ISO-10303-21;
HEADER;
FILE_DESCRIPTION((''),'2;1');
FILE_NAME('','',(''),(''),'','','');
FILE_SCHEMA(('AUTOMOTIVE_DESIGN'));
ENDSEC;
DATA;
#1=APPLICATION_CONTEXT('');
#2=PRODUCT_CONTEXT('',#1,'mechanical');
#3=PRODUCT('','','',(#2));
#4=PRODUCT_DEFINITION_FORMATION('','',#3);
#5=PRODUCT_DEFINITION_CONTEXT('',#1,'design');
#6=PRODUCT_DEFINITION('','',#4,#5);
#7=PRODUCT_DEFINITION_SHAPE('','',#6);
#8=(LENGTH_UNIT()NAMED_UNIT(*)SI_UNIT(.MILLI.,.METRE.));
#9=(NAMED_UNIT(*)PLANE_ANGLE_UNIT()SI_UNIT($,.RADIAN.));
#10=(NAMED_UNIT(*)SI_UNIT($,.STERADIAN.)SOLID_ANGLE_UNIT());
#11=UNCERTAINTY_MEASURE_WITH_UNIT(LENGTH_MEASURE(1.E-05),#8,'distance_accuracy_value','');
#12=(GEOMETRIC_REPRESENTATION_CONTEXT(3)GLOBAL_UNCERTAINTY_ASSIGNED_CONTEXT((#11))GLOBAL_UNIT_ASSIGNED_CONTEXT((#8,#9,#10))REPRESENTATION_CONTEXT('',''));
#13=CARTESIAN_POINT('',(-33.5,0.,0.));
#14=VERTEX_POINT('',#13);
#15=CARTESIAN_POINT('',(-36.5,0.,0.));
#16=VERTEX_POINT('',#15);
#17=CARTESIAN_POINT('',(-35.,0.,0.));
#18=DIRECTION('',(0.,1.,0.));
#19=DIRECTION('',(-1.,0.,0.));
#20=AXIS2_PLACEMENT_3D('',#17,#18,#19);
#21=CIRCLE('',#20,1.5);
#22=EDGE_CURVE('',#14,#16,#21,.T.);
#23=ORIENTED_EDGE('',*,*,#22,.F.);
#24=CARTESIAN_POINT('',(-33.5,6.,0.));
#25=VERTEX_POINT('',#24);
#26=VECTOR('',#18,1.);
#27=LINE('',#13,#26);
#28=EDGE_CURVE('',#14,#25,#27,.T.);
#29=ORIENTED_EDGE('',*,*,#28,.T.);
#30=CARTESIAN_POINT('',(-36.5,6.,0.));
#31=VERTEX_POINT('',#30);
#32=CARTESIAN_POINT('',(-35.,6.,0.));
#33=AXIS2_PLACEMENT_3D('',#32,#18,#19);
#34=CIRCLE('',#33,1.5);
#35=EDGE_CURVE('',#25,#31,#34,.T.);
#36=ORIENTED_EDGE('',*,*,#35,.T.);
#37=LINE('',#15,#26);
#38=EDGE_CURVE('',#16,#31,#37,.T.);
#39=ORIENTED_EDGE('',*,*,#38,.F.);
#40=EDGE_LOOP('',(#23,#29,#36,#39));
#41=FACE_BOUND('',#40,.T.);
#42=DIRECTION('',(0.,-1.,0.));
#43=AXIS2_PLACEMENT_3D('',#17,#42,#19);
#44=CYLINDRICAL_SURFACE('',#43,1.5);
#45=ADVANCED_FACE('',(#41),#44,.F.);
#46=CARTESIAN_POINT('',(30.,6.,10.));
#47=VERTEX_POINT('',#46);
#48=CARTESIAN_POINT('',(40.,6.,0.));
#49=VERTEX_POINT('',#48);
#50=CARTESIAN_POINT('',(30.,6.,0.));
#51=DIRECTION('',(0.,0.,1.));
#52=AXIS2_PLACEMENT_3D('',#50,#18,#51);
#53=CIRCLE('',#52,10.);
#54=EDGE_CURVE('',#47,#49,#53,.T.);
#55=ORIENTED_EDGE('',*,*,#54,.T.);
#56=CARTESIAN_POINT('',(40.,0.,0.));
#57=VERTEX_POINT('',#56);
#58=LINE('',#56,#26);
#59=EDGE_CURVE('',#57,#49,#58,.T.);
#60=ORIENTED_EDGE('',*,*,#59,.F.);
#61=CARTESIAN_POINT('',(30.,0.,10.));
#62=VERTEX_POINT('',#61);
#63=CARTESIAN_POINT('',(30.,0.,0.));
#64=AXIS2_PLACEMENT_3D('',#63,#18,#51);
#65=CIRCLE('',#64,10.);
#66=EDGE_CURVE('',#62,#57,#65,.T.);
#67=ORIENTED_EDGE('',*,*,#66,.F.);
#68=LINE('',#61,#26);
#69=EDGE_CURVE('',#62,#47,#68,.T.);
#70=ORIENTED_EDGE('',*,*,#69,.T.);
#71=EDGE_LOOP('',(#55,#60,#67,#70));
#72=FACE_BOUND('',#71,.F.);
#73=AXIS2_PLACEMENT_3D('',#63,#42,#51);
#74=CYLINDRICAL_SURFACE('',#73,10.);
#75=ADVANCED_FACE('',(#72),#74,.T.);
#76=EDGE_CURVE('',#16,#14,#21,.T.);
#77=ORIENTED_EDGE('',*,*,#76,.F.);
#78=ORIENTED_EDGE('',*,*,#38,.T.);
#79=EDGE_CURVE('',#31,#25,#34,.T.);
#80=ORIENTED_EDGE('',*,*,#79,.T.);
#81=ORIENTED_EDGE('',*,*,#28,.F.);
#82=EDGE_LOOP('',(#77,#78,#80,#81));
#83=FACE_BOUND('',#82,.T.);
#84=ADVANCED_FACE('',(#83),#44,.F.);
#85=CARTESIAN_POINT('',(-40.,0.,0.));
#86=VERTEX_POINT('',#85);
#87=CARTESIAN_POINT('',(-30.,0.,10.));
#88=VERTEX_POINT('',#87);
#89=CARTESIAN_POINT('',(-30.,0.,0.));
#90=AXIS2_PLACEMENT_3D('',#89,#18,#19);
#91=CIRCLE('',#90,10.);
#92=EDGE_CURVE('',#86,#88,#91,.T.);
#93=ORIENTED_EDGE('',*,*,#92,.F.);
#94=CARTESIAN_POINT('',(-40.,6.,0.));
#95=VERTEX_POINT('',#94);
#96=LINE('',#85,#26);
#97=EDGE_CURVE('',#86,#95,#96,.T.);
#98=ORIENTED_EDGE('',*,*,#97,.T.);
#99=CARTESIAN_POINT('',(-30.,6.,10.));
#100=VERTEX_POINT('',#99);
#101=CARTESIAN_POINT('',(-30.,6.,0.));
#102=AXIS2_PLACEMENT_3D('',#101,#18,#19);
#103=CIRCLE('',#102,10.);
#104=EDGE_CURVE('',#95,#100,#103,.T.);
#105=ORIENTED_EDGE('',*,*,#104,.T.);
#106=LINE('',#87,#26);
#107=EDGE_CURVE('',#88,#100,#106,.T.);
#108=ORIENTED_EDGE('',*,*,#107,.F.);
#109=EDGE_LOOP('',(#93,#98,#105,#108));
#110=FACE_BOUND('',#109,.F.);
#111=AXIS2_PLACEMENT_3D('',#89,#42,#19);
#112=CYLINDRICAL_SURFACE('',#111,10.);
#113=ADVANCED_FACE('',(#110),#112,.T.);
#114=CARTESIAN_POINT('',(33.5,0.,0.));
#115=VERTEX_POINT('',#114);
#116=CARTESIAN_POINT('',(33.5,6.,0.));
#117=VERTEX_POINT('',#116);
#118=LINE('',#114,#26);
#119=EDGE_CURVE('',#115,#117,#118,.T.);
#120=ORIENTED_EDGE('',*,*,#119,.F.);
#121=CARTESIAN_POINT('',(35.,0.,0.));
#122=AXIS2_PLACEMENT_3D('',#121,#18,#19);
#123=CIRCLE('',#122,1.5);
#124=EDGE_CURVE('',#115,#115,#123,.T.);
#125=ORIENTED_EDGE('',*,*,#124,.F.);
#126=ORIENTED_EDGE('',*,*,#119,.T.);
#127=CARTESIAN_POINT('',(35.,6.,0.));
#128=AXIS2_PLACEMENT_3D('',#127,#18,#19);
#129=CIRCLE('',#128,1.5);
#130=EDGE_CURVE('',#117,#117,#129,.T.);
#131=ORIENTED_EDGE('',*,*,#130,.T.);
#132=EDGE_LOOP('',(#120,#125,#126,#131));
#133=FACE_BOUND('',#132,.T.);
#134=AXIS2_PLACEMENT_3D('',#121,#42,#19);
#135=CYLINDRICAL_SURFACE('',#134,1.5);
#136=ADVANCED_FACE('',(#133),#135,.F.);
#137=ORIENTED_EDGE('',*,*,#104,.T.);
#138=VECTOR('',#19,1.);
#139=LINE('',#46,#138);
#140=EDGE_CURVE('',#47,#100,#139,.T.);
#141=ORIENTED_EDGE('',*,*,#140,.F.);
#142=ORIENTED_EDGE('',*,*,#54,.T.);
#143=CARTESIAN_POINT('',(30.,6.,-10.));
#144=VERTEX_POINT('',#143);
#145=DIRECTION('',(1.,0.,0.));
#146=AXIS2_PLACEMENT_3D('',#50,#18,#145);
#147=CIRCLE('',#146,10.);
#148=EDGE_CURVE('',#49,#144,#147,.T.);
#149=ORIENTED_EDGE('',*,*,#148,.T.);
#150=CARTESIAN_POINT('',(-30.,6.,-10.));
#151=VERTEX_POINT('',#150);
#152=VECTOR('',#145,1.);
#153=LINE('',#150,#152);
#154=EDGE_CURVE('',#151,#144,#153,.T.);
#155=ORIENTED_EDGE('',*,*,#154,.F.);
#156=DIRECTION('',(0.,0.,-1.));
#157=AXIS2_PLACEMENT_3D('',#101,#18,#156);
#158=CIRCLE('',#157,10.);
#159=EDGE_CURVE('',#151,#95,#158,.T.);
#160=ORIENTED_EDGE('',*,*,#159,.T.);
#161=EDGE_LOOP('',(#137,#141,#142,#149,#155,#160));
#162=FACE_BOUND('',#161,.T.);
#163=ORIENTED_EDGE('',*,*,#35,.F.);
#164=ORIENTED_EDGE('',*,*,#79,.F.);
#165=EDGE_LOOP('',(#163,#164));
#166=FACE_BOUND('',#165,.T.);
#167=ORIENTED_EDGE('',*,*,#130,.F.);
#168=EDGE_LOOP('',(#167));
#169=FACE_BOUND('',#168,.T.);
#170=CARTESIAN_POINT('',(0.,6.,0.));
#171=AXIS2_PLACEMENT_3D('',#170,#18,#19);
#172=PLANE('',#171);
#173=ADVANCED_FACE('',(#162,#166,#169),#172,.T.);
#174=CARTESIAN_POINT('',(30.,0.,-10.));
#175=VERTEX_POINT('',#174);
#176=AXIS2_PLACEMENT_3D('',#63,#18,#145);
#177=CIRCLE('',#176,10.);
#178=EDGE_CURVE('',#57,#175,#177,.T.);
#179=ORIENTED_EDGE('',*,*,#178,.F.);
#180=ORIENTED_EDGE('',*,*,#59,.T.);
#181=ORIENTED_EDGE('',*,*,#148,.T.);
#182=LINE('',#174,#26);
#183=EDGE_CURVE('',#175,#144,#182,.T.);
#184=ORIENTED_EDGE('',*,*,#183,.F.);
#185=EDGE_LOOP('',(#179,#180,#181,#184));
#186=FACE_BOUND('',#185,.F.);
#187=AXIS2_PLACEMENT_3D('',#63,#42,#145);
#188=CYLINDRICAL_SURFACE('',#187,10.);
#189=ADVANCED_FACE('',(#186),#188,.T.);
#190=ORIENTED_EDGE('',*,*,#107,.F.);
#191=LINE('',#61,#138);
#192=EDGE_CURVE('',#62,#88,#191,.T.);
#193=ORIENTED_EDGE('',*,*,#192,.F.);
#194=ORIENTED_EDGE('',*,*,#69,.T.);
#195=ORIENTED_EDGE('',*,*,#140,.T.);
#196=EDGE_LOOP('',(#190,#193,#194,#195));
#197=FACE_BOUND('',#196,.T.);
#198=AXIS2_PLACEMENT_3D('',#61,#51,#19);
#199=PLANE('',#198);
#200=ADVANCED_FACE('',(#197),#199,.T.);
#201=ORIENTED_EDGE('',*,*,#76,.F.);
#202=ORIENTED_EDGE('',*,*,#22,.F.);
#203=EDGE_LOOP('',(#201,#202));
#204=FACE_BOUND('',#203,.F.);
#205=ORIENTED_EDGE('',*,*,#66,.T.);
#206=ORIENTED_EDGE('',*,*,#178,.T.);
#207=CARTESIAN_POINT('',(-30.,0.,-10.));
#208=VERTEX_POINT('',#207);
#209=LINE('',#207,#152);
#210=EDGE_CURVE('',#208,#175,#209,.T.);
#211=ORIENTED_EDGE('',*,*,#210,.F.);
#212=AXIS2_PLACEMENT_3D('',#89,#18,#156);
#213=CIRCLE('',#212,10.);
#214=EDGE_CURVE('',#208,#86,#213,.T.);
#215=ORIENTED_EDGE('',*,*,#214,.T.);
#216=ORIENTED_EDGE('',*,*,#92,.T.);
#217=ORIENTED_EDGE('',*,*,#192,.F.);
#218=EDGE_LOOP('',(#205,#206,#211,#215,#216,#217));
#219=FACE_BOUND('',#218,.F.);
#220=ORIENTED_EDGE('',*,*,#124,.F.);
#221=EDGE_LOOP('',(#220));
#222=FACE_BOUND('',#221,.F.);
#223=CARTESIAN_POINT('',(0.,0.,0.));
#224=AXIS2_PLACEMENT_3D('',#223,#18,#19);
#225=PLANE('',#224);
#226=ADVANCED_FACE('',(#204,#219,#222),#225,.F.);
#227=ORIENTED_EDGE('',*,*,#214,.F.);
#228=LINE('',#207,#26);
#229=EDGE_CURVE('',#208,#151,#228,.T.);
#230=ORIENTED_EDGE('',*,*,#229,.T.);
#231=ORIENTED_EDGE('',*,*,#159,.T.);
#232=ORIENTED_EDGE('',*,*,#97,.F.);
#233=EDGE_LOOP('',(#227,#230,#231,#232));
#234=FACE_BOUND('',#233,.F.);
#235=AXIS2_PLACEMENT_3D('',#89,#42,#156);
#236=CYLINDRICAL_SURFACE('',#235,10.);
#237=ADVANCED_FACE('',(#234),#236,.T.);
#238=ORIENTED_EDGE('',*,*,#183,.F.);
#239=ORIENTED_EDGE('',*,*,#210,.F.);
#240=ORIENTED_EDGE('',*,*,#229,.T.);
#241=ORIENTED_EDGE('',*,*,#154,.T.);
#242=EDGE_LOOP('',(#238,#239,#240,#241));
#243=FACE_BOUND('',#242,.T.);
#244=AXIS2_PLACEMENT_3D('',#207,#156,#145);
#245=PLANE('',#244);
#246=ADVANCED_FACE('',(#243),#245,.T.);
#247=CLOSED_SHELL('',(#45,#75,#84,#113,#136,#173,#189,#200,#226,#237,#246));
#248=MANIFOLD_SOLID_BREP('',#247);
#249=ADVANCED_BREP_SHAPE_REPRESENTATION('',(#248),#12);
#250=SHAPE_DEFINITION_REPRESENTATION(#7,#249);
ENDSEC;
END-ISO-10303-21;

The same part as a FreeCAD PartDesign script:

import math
import FreeCAD as App
import Part
import Sketcher
Q = App.Units.Quantity

doc = App.newDocument("Part")
body = doc.addObject("PartDesign::Body", "Body")

sketch1 = body.newObject("Sketcher::SketchObject", "Sketch")
sketch1.AttachmentSupport = (doc.getObject("XZ_Plane"), [""])
sketch1.MapMode = "FlatFace"
sketch1.addGeometry(Part.LineSegment(App.Vector(30, -10, 0), App.Vector(-30, -10, 0)), False)
sketch1.addGeometry(Part.ArcOfCircle(Part.Circle(App.Vector(-30, 0, 0), App.Vector(0, 0, 1), 10), math.radians(90), math.radians(270)), False)
sketch1.addGeometry(Part.LineSegment(App.Vector(-30, 10, 0), App.Vector(30, 10, 0)), False)
sketch1.addGeometry(Part.ArcOfCircle(Part.Circle(App.Vector(30, 0, 0), App.Vector(0, 0, 1), 10), math.radians(-90), math.radians(90)), False)
sketch1.addGeometry(Part.Circle(App.Vector(35, 0, 0), App.Vector(0, 0, 1), 1.5), False)
sketch1.addGeometry(Part.Circle(App.Vector(-35, 0, 0), App.Vector(0, 0, 1), 1.5), False)
sketch1.addConstraint(Sketcher.Constraint("Tangent", 0, 2, 1, 2))
sketch1.addConstraint(Sketcher.Constraint("Tangent", 1, 1, 2, 1))
sketch1.addConstraint(Sketcher.Constraint("Tangent", 2, 2, 3, 2))
sketch1.addConstraint(Sketcher.Constraint("Tangent", 3, 1, 0, 1))
sketch1.addConstraint(Sketcher.Constraint("Horizontal", 0))
sketch1.addConstraint(Sketcher.Constraint("Horizontal", 2))
sketch1.addConstraint(Sketcher.Constraint("Equal", 4, 5))
sketch1.addConstraint(Sketcher.Constraint("Symmetric", 1, 3, 3, 3, -1, 1))
sketch1.addConstraint(Sketcher.Constraint("Symmetric", 4, 3, 5, 3, -1, 1))
sketch1.addConstraint(Sketcher.Constraint("PointOnObject", 4, 3, -1))
sketch1.addConstraint(Sketcher.Constraint("Diameter", 4, Q("3 mm")))
sketch1.addConstraint(Sketcher.Constraint("Radius", 1, Q("10 mm")))
sketch1.addConstraint(Sketcher.Constraint("DistanceX", -1, 1, 4, 3, Q("35 mm")))
sketch1.addConstraint(Sketcher.Constraint("DistanceX", 0, 2, 0, 1, Q("60 mm")))
pad1 = body.newObject("PartDesign::Pad", "Pad")
pad1.Profile = sketch1
pad1.Length = 6
pad1.Reversed = True

doc.recompute()
